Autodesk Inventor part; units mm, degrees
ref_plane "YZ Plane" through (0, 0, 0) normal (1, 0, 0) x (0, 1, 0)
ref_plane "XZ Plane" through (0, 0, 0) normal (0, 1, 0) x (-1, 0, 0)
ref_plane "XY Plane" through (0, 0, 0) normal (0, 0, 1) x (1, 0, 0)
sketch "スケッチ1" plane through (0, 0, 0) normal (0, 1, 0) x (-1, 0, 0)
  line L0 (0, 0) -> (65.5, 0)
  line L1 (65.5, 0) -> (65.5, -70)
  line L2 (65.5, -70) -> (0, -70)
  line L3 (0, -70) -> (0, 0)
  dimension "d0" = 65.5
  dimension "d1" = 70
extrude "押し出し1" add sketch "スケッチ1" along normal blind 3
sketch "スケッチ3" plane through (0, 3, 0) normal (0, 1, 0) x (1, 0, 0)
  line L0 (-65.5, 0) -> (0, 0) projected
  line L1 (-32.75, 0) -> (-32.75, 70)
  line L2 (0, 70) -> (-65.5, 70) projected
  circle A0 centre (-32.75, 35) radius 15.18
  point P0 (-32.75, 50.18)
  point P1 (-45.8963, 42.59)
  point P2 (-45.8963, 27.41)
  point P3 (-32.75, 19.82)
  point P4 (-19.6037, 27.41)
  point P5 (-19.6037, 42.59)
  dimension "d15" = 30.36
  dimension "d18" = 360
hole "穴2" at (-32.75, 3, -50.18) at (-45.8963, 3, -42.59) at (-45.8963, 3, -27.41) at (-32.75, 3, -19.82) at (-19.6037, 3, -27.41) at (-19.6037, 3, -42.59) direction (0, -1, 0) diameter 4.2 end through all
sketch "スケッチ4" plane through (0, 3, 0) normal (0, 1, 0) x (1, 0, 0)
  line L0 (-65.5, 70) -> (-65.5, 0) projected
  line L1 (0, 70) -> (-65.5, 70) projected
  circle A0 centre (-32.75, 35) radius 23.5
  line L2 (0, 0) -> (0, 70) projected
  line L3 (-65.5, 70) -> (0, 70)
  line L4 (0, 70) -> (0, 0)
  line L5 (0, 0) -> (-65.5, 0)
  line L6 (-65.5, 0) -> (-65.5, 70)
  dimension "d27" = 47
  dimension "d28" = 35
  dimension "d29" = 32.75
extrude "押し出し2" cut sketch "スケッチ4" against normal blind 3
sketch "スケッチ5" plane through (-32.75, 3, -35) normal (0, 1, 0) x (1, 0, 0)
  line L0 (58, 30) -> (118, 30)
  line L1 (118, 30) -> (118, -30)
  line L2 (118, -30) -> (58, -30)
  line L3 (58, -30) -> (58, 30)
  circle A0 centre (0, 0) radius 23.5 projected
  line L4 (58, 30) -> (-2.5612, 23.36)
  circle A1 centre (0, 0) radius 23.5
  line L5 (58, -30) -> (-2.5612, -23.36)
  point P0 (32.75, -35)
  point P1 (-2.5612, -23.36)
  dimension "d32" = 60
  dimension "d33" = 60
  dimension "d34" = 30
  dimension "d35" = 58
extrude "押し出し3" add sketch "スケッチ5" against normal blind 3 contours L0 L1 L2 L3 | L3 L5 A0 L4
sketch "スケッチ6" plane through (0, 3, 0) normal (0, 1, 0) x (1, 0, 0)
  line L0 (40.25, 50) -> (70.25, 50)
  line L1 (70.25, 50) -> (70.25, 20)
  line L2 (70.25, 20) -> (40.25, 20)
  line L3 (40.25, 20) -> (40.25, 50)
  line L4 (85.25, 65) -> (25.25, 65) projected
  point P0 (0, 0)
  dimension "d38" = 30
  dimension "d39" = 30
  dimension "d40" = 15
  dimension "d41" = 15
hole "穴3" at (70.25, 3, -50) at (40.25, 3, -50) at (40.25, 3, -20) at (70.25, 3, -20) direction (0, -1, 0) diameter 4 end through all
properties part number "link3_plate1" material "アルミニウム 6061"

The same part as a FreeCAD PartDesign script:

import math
import FreeCAD as App
import Part
import Sketcher

doc = App.newDocument("Part")
params = doc.addObject("Spreadsheet::Sheet", "Params")
for row, (alias, value) in enumerate([
    ("sketch1_height", "70 mm"),
    ("sketch1_width", "65.5 mm"),
    ("pad1_length", "3 mm"),
    ("sketch2_diameter", "4.2 mm"),
    ("hole_diameter", "4.2 mm"),
    ("sketch3_diameter", "47 mm"),
    ("pocket1_length", "3 mm"),
    ("sketch4_width", "60 mm"),
    ("sketch4_radius", "23.5 mm"),
    ("pad2_length", "3 mm"),
    ("sketch5_diameter", "4 mm"),
    ("hole2_diameter", "4 mm"),
], start=1):
    params.set(f"A{row}", alias)
    params.set(f"B{row}", "=" + value)
    params.setAlias(f"B{row}", alias)

body = doc.addObject("PartDesign::Body", "Body")

# Sketch on XZ plane
sketch1 = body.newObject("Sketcher::SketchObject", "Sketch")
sketch1.AttachmentSupport = (doc.getObject("XZ_Plane"), [""])
sketch1.MapMode = "FlatFace"
sketch1.addGeometry(Part.LineSegment(App.Vector(-66, 0, 0), App.Vector(0, 0, 0)), False)
sketch1.addGeometry(Part.LineSegment(App.Vector(0, 0, 0), App.Vector(0, -70, 0)), False)
sketch1.addGeometry(Part.LineSegment(App.Vector(0, -70, 0), App.Vector(-66, -70, 0)), False)
sketch1.addGeometry(Part.LineSegment(App.Vector(-66, -70, 0), App.Vector(-66, 0, 0)), False)
sketch1.addConstraint(Sketcher.Constraint("Coincident", 0, 2, 1, 1))
sketch1.addConstraint(Sketcher.Constraint("Coincident", 1, 2, 2, 1))
sketch1.addConstraint(Sketcher.Constraint("Coincident", 2, 2, 3, 1))
sketch1.addConstraint(Sketcher.Constraint("Coincident", 3, 2, 0, 1))
sketch1.addConstraint(Sketcher.Constraint("Horizontal", 0))
sketch1.addConstraint(Sketcher.Constraint("Vertical", 1))
sketch1.addConstraint(Sketcher.Constraint("Horizontal", 2))
sketch1.addConstraint(Sketcher.Constraint("Vertical", 3))
sketch1.addConstraint(Sketcher.Constraint("Coincident", 0, 2, -1, 1))
sketch1.addConstraint(Sketcher.Constraint("DistanceY", 1, 2, 1, 1, 70.0))
sketch1.addConstraint(Sketcher.Constraint("DistanceX", 0, 1, 0, 2, 65.5))
sketch1.setExpression("Constraints[9]", "Params.sketch1_height")
sketch1.setExpression("Constraints[10]", "Params.sketch1_width")
pad1 = body.newObject("PartDesign::Pad", "Pad")
pad1.Profile = sketch1
pad1.setExpression("Length", "Params.pad1_length")
pad1.Reversed = True

# Sketch on XZ plane
sketch2 = body.newObject("Sketcher::SketchObject", "Sketch001")
sketch2.AttachmentSupport = (doc.getObject("XZ_Plane"), [""])
sketch2.MapMode = "FlatFace"
sketch2.AttachmentOffset = App.Placement(App.Vector(0, 0, -3), App.Rotation())
sketch2.addGeometry(Part.Circle(App.Vector(-32.8, -50.2, 0), App.Vector(0, 0, 1), 2.1), False)
sketch2.addGeometry(Part.Circle(App.Vector(-45.9, -42.6, 0), App.Vector(0, 0, 1), 2.1), False)
sketch2.addGeometry(Part.Circle(App.Vector(-45.9, -27.4, 0), App.Vector(0, 0, 1), 2.1), False)
sketch2.addGeometry(Part.Circle(App.Vector(-32.8, -19.8, 0), App.Vector(0, 0, 1), 2.1), False)
sketch2.addGeometry(Part.Circle(App.Vector(-19.6, -27.4, 0), App.Vector(0, 0, 1), 2.1), False)
sketch2.addGeometry(Part.Circle(App.Vector(-19.6, -42.6, 0), App.Vector(0, 0, 1), 2.1), False)
sketch2.addConstraint(Sketcher.Constraint("Equal", 0, 1))
sketch2.addConstraint(Sketcher.Constraint("Equal", 1, 2))
sketch2.addConstraint(Sketcher.Constraint("Equal", 2, 3))
sketch2.addConstraint(Sketcher.Constraint("Equal", 3, 4))
sketch2.addConstraint(Sketcher.Constraint("Equal", 4, 5))
sketch2.addConstraint(Sketcher.Constraint("Horizontal", 2, 3, 4, 3))
sketch2.addConstraint(Sketcher.Constraint("Horizontal", 1, 3, 5, 3))
sketch2.addConstraint(Sketcher.Constraint("Vertical", 1, 3, 2, 3))
sketch2.addConstraint(Sketcher.Constraint("Vertical", 0, 3, 3, 3))
sketch2.addConstraint(Sketcher.Constraint("Vertical", 4, 3, 5, 3))
sketch2.addConstraint(Sketcher.Constraint("Diameter", 0, 4.2))
sketch2.addConstraint(Sketcher.Constraint("DistanceX", 0, 3, -1, 1, 32.75))
sketch2.addConstraint(Sketcher.Constraint("DistanceY", 0, 3, -1, 1, 50.18))
sketch2.addConstraint(Sketcher.Constraint("DistanceY", 1, 3, -1, 1, 42.59))
sketch2.addConstraint(Sketcher.Constraint("DistanceY", 2, 3, -1, 1, 27.41))
sketch2.addConstraint(Sketcher.Constraint("DistanceY", 3, 3, -1, 1, 19.82))
sketch2.addConstraint(Sketcher.Constraint("DistanceX", 1, 3, -1, 1, 45.8963))
sketch2.addConstraint(Sketcher.Constraint("DistanceX", 4, 3, -1, 1, 19.6037))
sketch2.setExpression("Constraints[10]", "Params.sketch2_diameter")
doc.recompute()
hole = body.newObject("PartDesign::Hole", "Hole")
hole.Profile = sketch2
hole.ThreadType = "None"
hole.setExpression("Diameter", "Params.hole_diameter")
hole.DepthType = "ThroughAll"
hole.Reversed = True

# Sketch on XZ plane
sketch3 = body.newObject("Sketcher::SketchObject", "Sketch002")
sketch3.AttachmentSupport = (doc.getObject("XZ_Plane"), [""])
sketch3.MapMode = "FlatFace"
sketch3.AttachmentOffset = App.Placement(App.Vector(0, 0, -3), App.Rotation())
sketch3.addGeometry(Part.LineSegment(App.Vector(0, -70, 0), App.Vector(-66, -70, 0)), False)
sketch3.addGeometry(Part.LineSegment(App.Vector(-66, -70, 0), App.Vector(-66, 0, 0)), False)
sketch3.addGeometry(Part.LineSegment(App.Vector(-66, 0, 0), App.Vector(0, 0, 0)), False)
sketch3.addGeometry(Part.LineSegment(App.Vector(0, 0, 0), App.Vector(0, -70, 0)), False)
sketch3.addGeometry(Part.Circle(App.Vector(-33, -35, 0), App.Vector(0, 0, 1), 24), False)
sketch3.addConstraint(Sketcher.Constraint("Coincident", 0, 2, 1, 1))
sketch3.addConstraint(Sketcher.Constraint("Coincident", 1, 2, 2, 1))
sketch3.addConstraint(Sketcher.Constraint("Coincident", 2, 2, 3, 1))
sketch3.addConstraint(Sketcher.Constraint("Coincident", 3, 2, 0, 1))
sketch3.addConstraint(Sketcher.Constraint("Horizontal", 0))
sketch3.addConstraint(Sketcher.Constraint("Vertical", 1))
sketch3.addConstraint(Sketcher.Constraint("Horizontal", 2))
sketch3.addConstraint(Sketcher.Constraint("Vertical", 3))
sketch3.addConstraint(Sketcher.Constraint("Coincident", 2, 2, -1, 1))
sketch3.addConstraint(Sketcher.Constraint("Diameter", 4, 47.0))
sketch3.addConstraint(Sketcher.Constraint("DistanceY", 4, 3, -1, 1, 35.0))
sketch3.addConstraint(Sketcher.Constraint("DistanceY", 0, 2, 4, 3, 35.0))
sketch3.addConstraint(Sketcher.Constraint("DistanceX", 4, 3, -1, 1, 32.75))
sketch3.addConstraint(Sketcher.Constraint("DistanceX", 0, 2, 4, 3, 32.75))
sketch3.setExpression("Constraints[9]", "Params.sketch3_diameter")
pocket1 = body.newObject("PartDesign::Pocket", "Pocket")
pocket1.Profile = sketch3
pocket1.setExpression("Length", "Params.pocket1_length")
pocket1.Reversed = True

# Sketch on XZ plane
sketch4 = body.newObject("Sketcher::SketchObject", "Sketch003")
sketch4.AttachmentSupport = (doc.getObject("XZ_Plane"), [""])
sketch4.MapMode = "FlatFace"
sketch4.AttachmentOffset = App.Placement(App.Vector(0, 0, -3), App.Rotation())
sketch4.addGeometry(Part.LineSegment(App.Vector(85, -65, 0), App.Vector(25, -65, 0)), False)
sketch4.addGeometry(Part.LineSegment(App.Vector(25, -65, 0), App.Vector(-35, -58, 0)), False)
sketch4.addGeometry(Part.ArcOfCircle(Part.Circle(App.Vector(-33, -35, 0), App.Vector(0, 0, 1), 24), math.radians(-96), math.radians(96)), False)
sketch4.addGeometry(Part.LineSegment(App.Vector(-35, -12, 0), App.Vector(25, -5, 0)), False)
sketch4.addGeometry(Part.LineSegment(App.Vector(25, -5, 0), App.Vector(85, -5, 0)), False)
sketch4.addGeometry(Part.LineSegment(App.Vector(85, -5, 0), App.Vector(85, -65, 0)), False)
sketch4.addConstraint(Sketcher.Constraint("Coincident", 0, 2, 1, 1))
sketch4.addConstraint(Sketcher.Constraint("Tangent", 1, 2, 2, 1))
sketch4.addConstraint(Sketcher.Constraint("Tangent", 2, 2, 3, 1))
sketch4.addConstraint(Sketcher.Constraint("Coincident", 3, 2, 4, 1))
sketch4.addConstraint(Sketcher.Constraint("Coincident", 4, 2, 5, 1))
sketch4.addConstraint(Sketcher.Constraint("Coincident", 5, 2, 0, 1))
sketch4.addConstraint(Sketcher.Constraint("Horizontal", 0))
sketch4.addConstraint(Sketcher.Constraint("Horizontal", 4))
sketch4.addConstraint(Sketcher.Constraint("Vertical", 5))
sketch4.addConstraint(Sketcher.Constraint("Vertical", 1, 2, 2, 2))
sketch4.addConstraint(Sketcher.Constraint("Vertical", 0, 2, 3, 2))
sketch4.addConstraint(Sketcher.Constraint("Equal", 4, 5))
sketch4.addConstraint(Sketcher.Constraint("DistanceX", 0, 2, 0, 1, 60.0))
sketch4.addConstraint(Sketcher.Constraint("DistanceX", 2, 3, 0, 2, 58.0))
sketch4.addConstraint(Sketcher.Constraint("Radius", 2, 23.5))
sketch4.addConstraint(Sketcher.Constraint("DistanceY", 2, 3, -1, 1, 35.0))
sketch4.addConstraint(Sketcher.Constraint("DistanceX", 2, 3, -1, 1, 32.75))
sketch4.setExpression("Constraints[12]", "Params.sketch4_width")
sketch4.setExpression("Constraints[14]", "Params.sketch4_radius")
pad2 = body.newObject("PartDesign::Pad", "Pad001")
pad2.Profile = sketch4
pad2.setExpression("Length", "Params.pad2_length")

# Sketch on XZ plane
sketch5 = body.newObject("Sketcher::SketchObject", "Sketch004")
sketch5.AttachmentSupport = (doc.getObject("XZ_Plane"), [""])
sketch5.MapMode = "FlatFace"
sketch5.AttachmentOffset = App.Placement(App.Vector(0, 0, -3), App.Rotation())
sketch5.addGeometry(Part.Circle(App.Vector(70.2, -50, 0), App.Vector(0, 0, 1), 2), False)
sketch5.addGeometry(Part.Circle(App.Vector(40.2, -50, 0), App.Vector(0, 0, 1), 2), False)
sketch5.addGeometry(Part.Circle(App.Vector(40.2, -20, 0), App.Vector(0, 0, 1), 2), False)
sketch5.addGeometry(Part.Circle(App.Vector(70.2, -20, 0), App.Vector(0, 0, 1), 2), False)
sketch5.addConstraint(Sketcher.Constraint("Equal", 0, 1))
sketch5.addConstraint(Sketcher.Constraint("Equal", 1, 2))
sketch5.addConstraint(Sketcher.Constraint("Equal", 2, 3))
sketch5.addConstraint(Sketcher.Constraint("Horizontal", 0, 3, 1, 3))
sketch5.addConstraint(Sketcher.Constraint("Horizontal", 2, 3, 3, 3))
sketch5.addConstraint(Sketcher.Constraint("Vertical", 1, 3, 2, 3))
sketch5.addConstraint(Sketcher.Constraint("Vertical", 0, 3, 3, 3))
sketch5.addConstraint(Sketcher.Constraint("Diameter", 0, 4.0))
sketch5.addConstraint(Sketcher.Constraint("DistanceY", 0, 3, -1, 1, 50.0))
sketch5.addConstraint(Sketcher.Constraint("DistanceY", 2, 3, -1, 1, 20.0))
sketch5.addConstraint(Sketcher.Constraint("DistanceX", 1, 3, 0, 3, 30.0))
sketch5.addConstraint(Sketcher.Constraint("DistanceX", -1, 1, 0, 3, 70.25))
sketch5.setExpression("Constraints[7]", "Params.sketch5_diameter")
doc.recompute()
hole2 = body.newObject("PartDesign::Hole", "Hole001")
hole2.Profile = sketch5
hole2.ThreadType = "None"
hole2.setExpression("Diameter", "Params.hole2_diameter")
hole2.DepthType = "ThroughAll"
hole2.Reversed = True

doc.recompute()
